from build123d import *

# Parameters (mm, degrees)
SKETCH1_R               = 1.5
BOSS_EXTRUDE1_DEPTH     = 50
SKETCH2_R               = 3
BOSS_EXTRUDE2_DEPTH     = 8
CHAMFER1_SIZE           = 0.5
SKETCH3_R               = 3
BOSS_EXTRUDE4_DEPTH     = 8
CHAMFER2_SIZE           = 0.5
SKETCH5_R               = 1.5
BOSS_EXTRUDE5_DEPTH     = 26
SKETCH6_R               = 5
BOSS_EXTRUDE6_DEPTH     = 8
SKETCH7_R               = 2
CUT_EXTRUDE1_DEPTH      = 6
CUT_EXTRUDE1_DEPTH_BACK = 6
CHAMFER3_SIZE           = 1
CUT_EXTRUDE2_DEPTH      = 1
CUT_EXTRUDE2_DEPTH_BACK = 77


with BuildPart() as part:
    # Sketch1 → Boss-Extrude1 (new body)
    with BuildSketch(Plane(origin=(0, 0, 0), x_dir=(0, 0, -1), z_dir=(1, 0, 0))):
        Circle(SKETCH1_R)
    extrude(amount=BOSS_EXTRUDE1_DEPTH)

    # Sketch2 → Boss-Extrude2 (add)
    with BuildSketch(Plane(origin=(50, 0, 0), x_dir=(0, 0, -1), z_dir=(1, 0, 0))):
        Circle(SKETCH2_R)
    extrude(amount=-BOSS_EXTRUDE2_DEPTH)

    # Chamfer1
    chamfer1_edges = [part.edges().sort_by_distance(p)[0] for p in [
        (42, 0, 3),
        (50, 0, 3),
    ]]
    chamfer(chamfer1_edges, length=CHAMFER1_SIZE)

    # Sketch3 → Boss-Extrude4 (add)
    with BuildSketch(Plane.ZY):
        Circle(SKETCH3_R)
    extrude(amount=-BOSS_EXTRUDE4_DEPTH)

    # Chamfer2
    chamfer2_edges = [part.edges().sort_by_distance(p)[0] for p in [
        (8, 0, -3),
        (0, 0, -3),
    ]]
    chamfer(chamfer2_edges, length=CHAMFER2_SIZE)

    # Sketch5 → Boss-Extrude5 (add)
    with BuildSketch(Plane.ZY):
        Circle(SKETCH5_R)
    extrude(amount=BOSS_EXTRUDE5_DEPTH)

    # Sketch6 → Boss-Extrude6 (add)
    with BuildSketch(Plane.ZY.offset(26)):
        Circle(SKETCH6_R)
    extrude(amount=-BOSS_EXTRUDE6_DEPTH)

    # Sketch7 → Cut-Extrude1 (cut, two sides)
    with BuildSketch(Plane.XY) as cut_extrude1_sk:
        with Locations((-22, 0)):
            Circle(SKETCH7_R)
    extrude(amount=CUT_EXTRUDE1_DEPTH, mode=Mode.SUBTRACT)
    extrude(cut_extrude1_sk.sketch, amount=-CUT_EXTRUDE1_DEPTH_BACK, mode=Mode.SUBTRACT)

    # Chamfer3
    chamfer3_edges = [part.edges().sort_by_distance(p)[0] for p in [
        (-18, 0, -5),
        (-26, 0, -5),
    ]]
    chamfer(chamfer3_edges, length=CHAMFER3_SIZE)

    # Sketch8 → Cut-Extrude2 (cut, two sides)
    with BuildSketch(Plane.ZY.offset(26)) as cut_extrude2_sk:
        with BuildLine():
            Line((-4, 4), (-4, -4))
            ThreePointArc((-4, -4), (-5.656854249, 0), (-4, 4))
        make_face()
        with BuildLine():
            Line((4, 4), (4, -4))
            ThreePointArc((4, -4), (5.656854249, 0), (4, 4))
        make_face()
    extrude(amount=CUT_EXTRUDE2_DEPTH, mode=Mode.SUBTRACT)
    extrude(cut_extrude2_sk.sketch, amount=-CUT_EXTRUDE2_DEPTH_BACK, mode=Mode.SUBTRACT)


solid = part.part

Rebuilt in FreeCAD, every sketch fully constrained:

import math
import FreeCAD as App
import Part
import Sketcher
Q = App.Units.Quantity


def edges_at(feature, points):
    """Names of the edges that pass closest to the given points."""
    edges = feature.Shape.Edges
    near = lambda p: min(range(len(edges)), key=lambda i: edges[i].distToShape(Part.Vertex(*p))[0])
    return sorted({f"Edge{near(p) + 1}" for p in points})

doc = App.newDocument("Part")
params = doc.addObject("Spreadsheet::Sheet", "Params")
for row, (alias, value) in enumerate([
    ("sketch1_diameter", "3 mm"),
    ("pad1_length", "50 mm"),
    ("sketch2_diameter", "6 mm"),
    ("pad2_length", "8 mm"),
    ("chamfer_size", "0.5 mm"),
    ("sketch3_diameter", "6 mm"),
    ("pad3_length", "8 mm"),
    ("chamfer2_size", "0.5 mm"),
    ("sketch4_diameter", "3 mm"),
    ("pad4_length", "26 mm"),
    ("sketch5_diameter", "10 mm"),
    ("pad5_length", "8 mm"),
    ("sketch6_diameter", "4 mm"),
    ("chamfer3_size", "1 mm"),
    ("sketch7_width", "8 mm"),
], start=1):
    params.set(f"A{row}", alias)
    params.set(f"B{row}", "=" + value)
    params.setAlias(f"B{row}", alias)

body = doc.addObject("PartDesign::Body", "Body")

sketch1 = doc.addObject("Sketcher::SketchObject", "Sketch")
body.addObject(sketch1)
sketch1.AttachmentSupport = (doc.YZ_Plane, [""])
sketch1.MapMode = "FlatFace"
sketch1.addGeometry(Part.Circle(App.Vector(0, 0, 0), App.Vector(0, 0, 1), 1.5), False)
sketch1.addConstraint(Sketcher.Constraint("Coincident", 0, 3, -1, 1))
sketch1.addConstraint(Sketcher.Constraint("Diameter", 0, Q("3 mm")))
sketch1.setExpression("Constraints[1]", "Params.sketch1_diameter")
pad1 = doc.addObject("PartDesign::Pad", "Pad")
body.addObject(pad1)
pad1.Profile = sketch1
pad1.setExpression("Length", "Params.pad1_length")

sketch2 = doc.addObject("Sketcher::SketchObject", "Sketch001")
body.addObject(sketch2)
sketch2.AttachmentSupport = (doc.YZ_Plane, [""])
sketch2.MapMode = "FlatFace"
sketch2.AttachmentOffset = App.Placement(App.Vector(0, 0, 50), App.Rotation())
sketch2.addGeometry(Part.Circle(App.Vector(0, 0, 0), App.Vector(0, 0, 1), 3), False)
sketch2.addConstraint(Sketcher.Constraint("Coincident", 0, 3, -1, 1))
sketch2.addConstraint(Sketcher.Constraint("Diameter", 0, Q("6 mm")))
sketch2.setExpression("Constraints[1]", "Params.sketch2_diameter")
pad2 = doc.addObject("PartDesign::Pad", "Pad001")
body.addObject(pad2)
pad2.Profile = sketch2
pad2.setExpression("Length", "Params.pad2_length")
pad2.Reversed = True
doc.recompute()

chamfer = doc.addObject("PartDesign::Chamfer", "Chamfer")
body.addObject(chamfer)
chamfer.Base = (pad2, edges_at(pad2, [(42, 0, 3), (50, 0, 3)]))
chamfer.setExpression("Size", "Params.chamfer_size")

sketch3 = doc.addObject("Sketcher::SketchObject", "Sketch002")
body.addObject(sketch3)
sketch3.AttachmentSupport = (doc.YZ_Plane, [""])
sketch3.MapMode = "FlatFace"
sketch3.addGeometry(Part.Circle(App.Vector(0, 0, 0), App.Vector(0, 0, 1), 3), False)
sketch3.addConstraint(Sketcher.Constraint("Coincident", 0, 3, -1, 1))
sketch3.addConstraint(Sketcher.Constraint("Diameter", 0, Q("6 mm")))
sketch3.setExpression("Constraints[1]", "Params.sketch3_diameter")
pad3 = doc.addObject("PartDesign::Pad", "Pad002")
body.addObject(pad3)
pad3.Profile = sketch3
pad3.setExpression("Length", "Params.pad3_length")
doc.recompute()

chamfer2 = doc.addObject("PartDesign::Chamfer", "Chamfer001")
body.addObject(chamfer2)
chamfer2.Base = (pad3, edges_at(pad3, [(8, 0, -3), (0, 0, -3)]))
chamfer2.setExpression("Size", "Params.chamfer2_size")

sketch4 = doc.addObject("Sketcher::SketchObject", "Sketch003")
body.addObject(sketch4)
sketch4.AttachmentSupport = (doc.YZ_Plane, [""])
sketch4.MapMode = "FlatFace"
sketch4.addGeometry(Part.Circle(App.Vector(0, 0, 0), App.Vector(0, 0, 1), 1.5), False)
sketch4.addConstraint(Sketcher.Constraint("Coincident", 0, 3, -1, 1))
sketch4.addConstraint(Sketcher.Constraint("Diameter", 0, Q("3 mm")))
sketch4.setExpression("Constraints[1]", "Params.sketch4_diameter")
pad4 = doc.addObject("PartDesign::Pad", "Pad003")
body.addObject(pad4)
pad4.Profile = sketch4
pad4.setExpression("Length", "Params.pad4_length")
pad4.Reversed = True

sketch5 = doc.addObject("Sketcher::SketchObject", "Sketch004")
body.addObject(sketch5)
sketch5.AttachmentSupport = (doc.YZ_Plane, [""])
sketch5.MapMode = "FlatFace"
sketch5.AttachmentOffset = App.Placement(App.Vector(0, 0, -26), App.Rotation())
sketch5.addGeometry(Part.Circle(App.Vector(0, 0, 0), App.Vector(0, 0, 1), 5), False)
sketch5.addConstraint(Sketcher.Constraint("Coincident", 0, 3, -1, 1))
sketch5.addConstraint(Sketcher.Constraint("Diameter", 0, Q("10 mm")))
sketch5.setExpression("Constraints[1]", "Params.sketch5_diameter")
pad5 = doc.addObject("PartDesign::Pad", "Pad004")
body.addObject(pad5)
pad5.Profile = sketch5
pad5.setExpression("Length", "Params.pad5_length")

sketch6 = doc.addObject("Sketcher::SketchObject", "Sketch005")
body.addObject(sketch6)
sketch6.AttachmentSupport = (doc.XY_Plane, [""])
sketch6.MapMode = "FlatFace"
sketch6.addGeometry(Part.Circle(App.Vector(-22, 0, 0), App.Vector(0, 0, 1), 2), False)
sketch6.addConstraint(Sketcher.Constraint("PointOnObject", 0, 3, -1))
sketch6.addConstraint(Sketcher.Constraint("Diameter", 0, Q("4 mm")))
sketch6.addConstraint(Sketcher.Constraint("DistanceX", 0, 3, -1, 1, Q("22 mm")))
sketch6.setExpression("Constraints[1]", "Params.sketch6_diameter")
pocket1 = doc.addObject("PartDesign::Pocket", "Pocket")
body.addObject(pocket1)
pocket1.Profile = sketch6
pocket1.Type = "ThroughAll"
pocket1.Midplane = True
doc.recompute()

chamfer3 = doc.addObject("PartDesign::Chamfer", "Chamfer002")
body.addObject(chamfer3)
chamfer3.Base = (pocket1, edges_at(pocket1, [(-18, 0, -5), (-26, 0, -5)]))
chamfer3.setExpression("Size", "Params.chamfer3_size")

sketch7 = doc.addObject("Sketcher::SketchObject", "Sketch006")
body.addObject(sketch7)
sketch7.AttachmentSupport = (doc.YZ_Plane, [""])
sketch7.MapMode = "FlatFace"
sketch7.AttachmentOffset = App.Placement(App.Vector(0, 0, -26), App.Rotation())
sketch7.addGeometry(Part.LineSegment(App.Vector(-4, -4, 0), App.Vector(4, -4, 0)), False)
sketch7.addGeometry(Part.ArcOfCircle(Part.Circle(App.Vector(0, 0, 0), App.Vector(0, 0, 1), 6), math.radians(-135), math.radians(-45)), False)
sketch7.addGeometry(Part.LineSegment(App.Vector(4, 4, 0), App.Vector(-4, 4, 0)), False)
sketch7.addGeometry(Part.ArcOfCircle(Part.Circle(App.Vector(0, 0, 0), App.Vector(0, 0, 1), 6), math.radians(45), math.radians(135)), False)
sketch7.addConstraint(Sketcher.Constraint("Coincident", 0, 1, 1, 1))
sketch7.addConstraint(Sketcher.Constraint("Coincident", 1, 2, 0, 2))
sketch7.addConstraint(Sketcher.Constraint("Coincident", 2, 1, 3, 1))
sketch7.addConstraint(Sketcher.Constraint("Coincident", 3, 2, 2, 2))
sketch7.addConstraint(Sketcher.Constraint("Horizontal", 0))
sketch7.addConstraint(Sketcher.Constraint("Horizontal", 2))
sketch7.addConstraint(Sketcher.Constraint("Coincident", 1, 3, -1, 1))
sketch7.addConstraint(Sketcher.Constraint("Coincident", 3, 3, -1, 1))
sketch7.addConstraint(Sketcher.Constraint("Equal", 1, 3))
sketch7.addConstraint(Sketcher.Constraint("Vertical", 1, 2, 2, 1))
sketch7.addConstraint(Sketcher.Constraint("DistanceX", 0, 1, 0, 2, Q("8 mm")))
sketch7.addConstraint(Sketcher.Constraint("DistanceY", 0, 1, -1, 1, Q("4 mm")))
sketch7.setExpression("Constraints[10]", "Params.sketch7_width")
pocket2 = doc.addObject("PartDesign::Pocket", "Pocket001")
body.addObject(pocket2)
pocket2.Profile = sketch7
pocket2.Type = "ThroughAll"
pocket2.Midplane = True

doc.recompute()
